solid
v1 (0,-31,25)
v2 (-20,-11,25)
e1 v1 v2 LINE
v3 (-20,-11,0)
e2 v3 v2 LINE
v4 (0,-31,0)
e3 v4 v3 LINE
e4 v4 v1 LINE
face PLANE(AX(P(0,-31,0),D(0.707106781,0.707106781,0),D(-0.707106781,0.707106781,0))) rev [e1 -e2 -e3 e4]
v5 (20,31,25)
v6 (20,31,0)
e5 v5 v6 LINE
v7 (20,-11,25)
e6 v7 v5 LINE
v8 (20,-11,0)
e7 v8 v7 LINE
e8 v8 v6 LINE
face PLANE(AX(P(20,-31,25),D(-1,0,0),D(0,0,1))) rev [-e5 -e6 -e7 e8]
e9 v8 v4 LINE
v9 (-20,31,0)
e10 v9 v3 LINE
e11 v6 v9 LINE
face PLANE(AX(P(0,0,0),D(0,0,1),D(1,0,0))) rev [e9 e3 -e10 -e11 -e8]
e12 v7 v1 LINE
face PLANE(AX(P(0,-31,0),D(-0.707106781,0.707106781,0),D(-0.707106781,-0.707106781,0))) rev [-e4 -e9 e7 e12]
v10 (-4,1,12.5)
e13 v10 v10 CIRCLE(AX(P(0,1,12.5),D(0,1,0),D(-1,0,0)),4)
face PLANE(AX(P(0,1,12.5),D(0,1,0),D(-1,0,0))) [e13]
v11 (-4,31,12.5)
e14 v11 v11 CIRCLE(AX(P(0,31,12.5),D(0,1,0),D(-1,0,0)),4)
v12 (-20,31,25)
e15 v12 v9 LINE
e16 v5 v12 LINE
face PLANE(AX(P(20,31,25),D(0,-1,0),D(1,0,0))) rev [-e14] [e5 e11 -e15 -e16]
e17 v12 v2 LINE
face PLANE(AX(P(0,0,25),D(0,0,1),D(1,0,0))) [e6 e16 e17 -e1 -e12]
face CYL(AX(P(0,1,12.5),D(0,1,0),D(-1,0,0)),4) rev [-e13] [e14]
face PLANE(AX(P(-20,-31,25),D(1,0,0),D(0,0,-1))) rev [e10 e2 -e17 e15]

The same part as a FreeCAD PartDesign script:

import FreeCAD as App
import Part
import Sketcher
from FreeCAD import Vector


def add_polygon(sketch, points):
    """Adds a closed chain of lines whose ends are joined by coincident constraints."""
    first, n = sketch.GeometryCount, len(points)
    for a, b in zip(points, points[1:] + points[:1]):
        sketch.addGeometry(Part.LineSegment(App.Vector(*a, 0), App.Vector(*b, 0)), False)
    for i in range(n):
        sketch.addConstraint(Sketcher.Constraint("Coincident", first + i, 2, first + (i + 1) % n, 1))

doc = App.newDocument("Part")
body = doc.addObject("PartDesign::Body", "Body")

# Sketch on XY plane
sketch1 = body.newObject("Sketcher::SketchObject", "Sketch")
sketch1.AttachmentSupport = (doc.getObject("XY_Plane"), [""])
sketch1.MapMode = "FlatFace"
add_polygon(sketch1, [(-20, 31), (-20, -31), (20, -31), (20, 31)])  # lines 0-3
sketch1.addConstraint(Sketcher.Constraint("Vertical", 0))
sketch1.addConstraint(Sketcher.Constraint("Horizontal", 1))
sketch1.addConstraint(Sketcher.Constraint("Vertical", 2))
sketch1.addConstraint(Sketcher.Constraint("Horizontal", 3))
sketch1.addConstraint(Sketcher.Constraint("Symmetric", 0, 2, 2, 2, -1, 1))
sketch1.addConstraint(Sketcher.Constraint("DistanceX", 1, 1, 1, 2, 40.0))
sketch1.addConstraint(Sketcher.Constraint("DistanceY", 0, 2, 0, 1, 62.0))
pad1 = body.newObject("PartDesign::Pad", "Pad")
pad1.Profile = sketch1
pad1.Length = 25

# Sketch on XY plane
sketch2 = body.newObject("Sketcher::SketchObject", "Sketch001")
sketch2.AttachmentSupport = (doc.getObject("XY_Plane"), [""])
sketch2.MapMode = "FlatFace"
sketch2.AttachmentOffset = App.Placement(Vector(0, 0, 25), App.Rotation())
add_polygon(sketch2, [(0, -31), (-20, -11), (-20, -38.533016), (20, -38.533016), (20, -11)])  # lines 0-4
sketch2.addConstraint(Sketcher.Constraint("Vertical", 1))
sketch2.addConstraint(Sketcher.Constraint("Horizontal", 2))
sketch2.addConstraint(Sketcher.Constraint("Vertical", 3))
sketch2.addConstraint(Sketcher.Constraint("Symmetric", 0, 2, 3, 2, -2))
sketch2.addConstraint(Sketcher.Constraint("PointOnObject", 4, 2, -2))
sketch2.addConstraint(Sketcher.Constraint("Perpendicular", 0, 4))
sketch2.addConstraint(Sketcher.Constraint("DistanceX", 2, 1, 2, 2, 40.0))
sketch2.addConstraint(Sketcher.Constraint("DistanceY", 0, 2, -1, 1, 11.0))
sketch2.addConstraint(Sketcher.Constraint("DistanceY", 1, 2, 1, 1, 27.533016))
pocket1 = body.newObject("PartDesign::Pocket", "Pocket")
pocket1.Profile = sketch2
pocket1.Length = 25

# Sketch on XZ plane
sketch3 = body.newObject("Sketcher::SketchObject", "Sketch002")
sketch3.AttachmentSupport = (doc.getObject("XZ_Plane"), [""])
sketch3.MapMode = "FlatFace"
sketch3.AttachmentOffset = App.Placement(Vector(0, 0, -31), App.Rotation())
sketch3.addGeometry(Part.Circle(Vector(0, 12.5, 0), Vector(0, 0, 1), 4), False)
sketch3.addConstraint(Sketcher.Constraint("PointOnObject", 0, 3, -2))
sketch3.addConstraint(Sketcher.Constraint("Diameter", 0, 8.0))
sketch3.addConstraint(Sketcher.Constraint("DistanceY", -1, 1, 0, 3, 12.5))
pocket2 = body.newObject("PartDesign::Pocket", "Pocket001")
pocket2.Profile = sketch3
pocket2.Length = 30
pocket2.Reversed = True

doc.recompute()
